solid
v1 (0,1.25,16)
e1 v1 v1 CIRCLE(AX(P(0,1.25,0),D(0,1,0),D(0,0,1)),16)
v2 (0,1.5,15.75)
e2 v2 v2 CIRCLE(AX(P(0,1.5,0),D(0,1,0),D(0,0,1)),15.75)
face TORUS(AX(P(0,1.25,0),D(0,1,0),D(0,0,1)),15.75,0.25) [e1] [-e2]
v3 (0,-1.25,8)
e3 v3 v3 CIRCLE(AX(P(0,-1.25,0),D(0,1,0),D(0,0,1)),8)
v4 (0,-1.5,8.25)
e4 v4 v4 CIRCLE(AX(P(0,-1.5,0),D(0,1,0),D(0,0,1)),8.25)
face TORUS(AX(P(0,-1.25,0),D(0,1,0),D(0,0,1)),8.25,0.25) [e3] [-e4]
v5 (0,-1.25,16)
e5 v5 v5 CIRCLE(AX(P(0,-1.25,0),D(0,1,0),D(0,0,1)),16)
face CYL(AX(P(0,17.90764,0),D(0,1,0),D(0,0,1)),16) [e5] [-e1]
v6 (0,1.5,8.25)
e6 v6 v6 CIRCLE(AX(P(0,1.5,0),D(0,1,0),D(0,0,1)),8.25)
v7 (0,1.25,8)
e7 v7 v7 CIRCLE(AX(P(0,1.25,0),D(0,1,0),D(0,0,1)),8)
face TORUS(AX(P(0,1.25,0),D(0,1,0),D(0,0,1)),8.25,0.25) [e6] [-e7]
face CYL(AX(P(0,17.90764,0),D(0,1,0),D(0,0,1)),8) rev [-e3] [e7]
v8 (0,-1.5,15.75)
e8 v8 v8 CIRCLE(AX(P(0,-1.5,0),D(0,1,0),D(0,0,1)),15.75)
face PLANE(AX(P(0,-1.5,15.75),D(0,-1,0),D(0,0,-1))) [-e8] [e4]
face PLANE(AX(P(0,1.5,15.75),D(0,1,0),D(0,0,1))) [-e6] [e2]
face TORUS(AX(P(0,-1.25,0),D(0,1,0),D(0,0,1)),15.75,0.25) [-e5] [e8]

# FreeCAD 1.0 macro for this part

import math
import FreeCAD as App
import Part
import Sketcher

V = App.Vector
Q = App.Units.Quantity

doc = App.newDocument("Part")
body = doc.addObject("PartDesign::Body", "Body")

# Sketch on YZ plane
sketch1 = doc.addObject("Sketcher::SketchObject", "Sketch")
body.addObject(sketch1)
sketch1.AttachmentSupport = (doc.YZ_Plane, [""])
sketch1.MapMode = "FlatFace"
sketch1.addGeometry(Part.LineSegment(V(1.25, 16, 0), V(-1.25, 16, 0)), False)
sketch1.addGeometry(Part.ArcOfCircle(Part.Circle(V(-1.25, 15.75, 0), V(0, 0, 1), 0.25), math.radians(90), math.radians(180)), False)
sketch1.addGeometry(Part.LineSegment(V(-1.5, 15.75, 0), V(-1.5, 8.25, 0)), False)
sketch1.addGeometry(Part.ArcOfCircle(Part.Circle(V(-1.25, 8.25, 0), V(0, 0, 1), 0.25), math.radians(-180), math.radians(-90)), False)
sketch1.addGeometry(Part.LineSegment(V(-1.25, 8, 0), V(1.25, 8, 0)), False)
sketch1.addGeometry(Part.ArcOfCircle(Part.Circle(V(1.25, 8.25, 0), V(0, 0, 1), 0.25), math.radians(-90), math.radians(0)), False)
sketch1.addGeometry(Part.LineSegment(V(1.5, 8.25, 0), V(1.5, 15.75, 0)), False)
sketch1.addGeometry(Part.ArcOfCircle(Part.Circle(V(1.25, 15.75, 0), V(0, 0, 1), 0.25), math.radians(0), math.radians(90)), False)
sketch1.addConstraint(Sketcher.Constraint("Tangent", 0, 2, 1, 1))
sketch1.addConstraint(Sketcher.Constraint("Tangent", 1, 2, 2, 1))
sketch1.addConstraint(Sketcher.Constraint("Tangent", 2, 2, 3, 1))
sketch1.addConstraint(Sketcher.Constraint("Tangent", 3, 2, 4, 1))
sketch1.addConstraint(Sketcher.Constraint("Tangent", 4, 2, 5, 1))
sketch1.addConstraint(Sketcher.Constraint("Tangent", 5, 2, 6, 1))
sketch1.addConstraint(Sketcher.Constraint("Tangent", 6, 2, 7, 1))
sketch1.addConstraint(Sketcher.Constraint("Tangent", 7, 2, 0, 1))
sketch1.addConstraint(Sketcher.Constraint("Horizontal", 0))
sketch1.addConstraint(Sketcher.Constraint("Vertical", 2))
sketch1.addConstraint(Sketcher.Constraint("Horizontal", 4))
sketch1.addConstraint(Sketcher.Constraint("Vertical", 6))
sketch1.addConstraint(Sketcher.Constraint("Equal", 1, 3))
sketch1.addConstraint(Sketcher.Constraint("Equal", 3, 5))
sketch1.addConstraint(Sketcher.Constraint("Equal", 5, 7))
sketch1.addConstraint(Sketcher.Constraint("Radius", 1, Q("0.25 mm")))
sketch1.addConstraint(Sketcher.Constraint("DistanceX", 0, 2, 0, 1, Q("2.5 mm")))
sketch1.addConstraint(Sketcher.Constraint("DistanceY", 2, 2, 2, 1, Q("7.5 mm")))
sketch1.addConstraint(Sketcher.Constraint("DistanceY", -1, 1, 0, 2, Q("16 mm")))
sketch1.addConstraint(Sketcher.Constraint("DistanceX", 1, 2, -1, 1, Q("1.5 mm")))
revolution = doc.addObject("PartDesign::Revolution", "Revolution")
body.addObject(revolution)
revolution.Profile = sketch1
revolution.ReferenceAxis = (sketch1, ["H_Axis"])
revolution.Angle = 360

doc.recompute()
